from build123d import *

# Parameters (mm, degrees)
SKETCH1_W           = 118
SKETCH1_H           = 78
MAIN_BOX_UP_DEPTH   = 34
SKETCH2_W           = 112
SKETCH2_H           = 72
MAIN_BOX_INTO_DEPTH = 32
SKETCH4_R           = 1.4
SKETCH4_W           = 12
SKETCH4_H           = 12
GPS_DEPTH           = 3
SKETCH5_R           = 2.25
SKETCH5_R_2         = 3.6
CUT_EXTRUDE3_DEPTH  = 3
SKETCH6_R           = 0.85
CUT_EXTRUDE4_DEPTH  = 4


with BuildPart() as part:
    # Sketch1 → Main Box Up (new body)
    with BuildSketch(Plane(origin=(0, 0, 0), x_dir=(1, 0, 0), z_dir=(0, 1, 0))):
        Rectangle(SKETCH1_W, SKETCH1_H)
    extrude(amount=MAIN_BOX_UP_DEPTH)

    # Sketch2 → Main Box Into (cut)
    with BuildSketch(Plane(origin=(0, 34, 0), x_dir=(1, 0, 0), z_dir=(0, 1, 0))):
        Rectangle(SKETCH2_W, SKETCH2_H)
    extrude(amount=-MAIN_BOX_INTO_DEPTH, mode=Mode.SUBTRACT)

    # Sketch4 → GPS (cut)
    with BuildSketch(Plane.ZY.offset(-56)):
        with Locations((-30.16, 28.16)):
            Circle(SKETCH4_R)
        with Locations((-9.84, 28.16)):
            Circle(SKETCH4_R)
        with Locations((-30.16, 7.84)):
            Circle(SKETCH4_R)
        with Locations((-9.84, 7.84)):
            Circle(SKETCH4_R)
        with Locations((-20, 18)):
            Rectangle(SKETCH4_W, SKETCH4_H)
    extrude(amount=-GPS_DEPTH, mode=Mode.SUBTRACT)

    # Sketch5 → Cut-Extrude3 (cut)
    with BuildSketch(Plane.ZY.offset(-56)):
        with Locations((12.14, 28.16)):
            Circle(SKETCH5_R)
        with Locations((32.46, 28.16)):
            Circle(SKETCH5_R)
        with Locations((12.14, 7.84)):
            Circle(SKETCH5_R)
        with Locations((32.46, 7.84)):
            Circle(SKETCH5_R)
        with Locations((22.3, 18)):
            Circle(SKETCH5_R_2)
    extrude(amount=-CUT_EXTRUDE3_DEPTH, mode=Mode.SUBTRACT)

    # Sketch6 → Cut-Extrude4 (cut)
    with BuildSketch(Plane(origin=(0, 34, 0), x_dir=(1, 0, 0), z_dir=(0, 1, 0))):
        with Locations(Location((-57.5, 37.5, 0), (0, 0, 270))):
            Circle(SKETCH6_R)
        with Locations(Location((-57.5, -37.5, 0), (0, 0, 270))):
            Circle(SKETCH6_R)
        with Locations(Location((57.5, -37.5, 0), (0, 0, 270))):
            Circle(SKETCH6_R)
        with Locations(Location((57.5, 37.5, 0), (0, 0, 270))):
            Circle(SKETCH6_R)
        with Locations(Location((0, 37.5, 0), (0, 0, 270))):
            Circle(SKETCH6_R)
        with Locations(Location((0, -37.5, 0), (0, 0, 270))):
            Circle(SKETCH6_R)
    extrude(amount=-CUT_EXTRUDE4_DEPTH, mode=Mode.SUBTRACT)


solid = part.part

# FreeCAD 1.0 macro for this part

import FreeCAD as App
import Part
import Sketcher
from FreeCAD import Vector
Q = App.Units.Quantity

doc = App.newDocument("Part")
body = doc.addObject("PartDesign::Body", "Body")

sketch1 = body.newObject("Sketcher::SketchObject", "Sketch")
sketch1.AttachmentSupport = (doc.getObject("XZ_Plane"), [""])
sketch1.MapMode = "FlatFace"
sketch1.addGeometry([
    Part.LineSegment(Vector(-59, -39, 0), Vector(-59, 39, 0)),
    Part.LineSegment(Vector(-59, 39, 0), Vector(59, 39, 0)),
    Part.LineSegment(Vector(59, 39, 0), Vector(59, -39, 0)),
    Part.LineSegment(Vector(59, -39, 0), Vector(-59, -39, 0)),
], False)
sketch1.addConstraint([
    Sketcher.Constraint("Coincident", 0, 2, 1, 1),
    Sketcher.Constraint("Coincident", 1, 2, 2, 1),
    Sketcher.Constraint("Coincident", 2, 2, 3, 1),
    Sketcher.Constraint("Coincident", 3, 2, 0, 1),
    Sketcher.Constraint("Vertical", 0),
    Sketcher.Constraint("Horizontal", 1),
    Sketcher.Constraint("Vertical", 2),
    Sketcher.Constraint("Horizontal", 3),
    Sketcher.Constraint("Symmetric", 0, 2, 2, 2, -1, 1),
    Sketcher.Constraint("DistanceX", 1, 1, 1, 2, Q("118 mm")),
    Sketcher.Constraint("DistanceY", 0, 1, 0, 2, Q("78 mm")),
])
pad1 = body.newObject("PartDesign::Pad", "Pad")
pad1.Profile = sketch1
pad1.Length = 34
pad1.Reversed = True

sketch2 = body.newObject("Sketcher::SketchObject", "Sketch001")
sketch2.AttachmentSupport = (doc.getObject("XZ_Plane"), [""])
sketch2.MapMode = "FlatFace"
sketch2.AttachmentOffset = App.Placement(Vector(0, 0, -34), App.Rotation())
sketch2.addGeometry([
    Part.LineSegment(Vector(-56, -36, 0), Vector(-56, 36, 0)),
    Part.LineSegment(Vector(-56, 36, 0), Vector(56, 36, 0)),
    Part.LineSegment(Vector(56, 36, 0), Vector(56, -36, 0)),
    Part.LineSegment(Vector(56, -36, 0), Vector(-56, -36, 0)),
], False)
sketch2.addConstraint([
    Sketcher.Constraint("Coincident", 0, 2, 1, 1),
    Sketcher.Constraint("Coincident", 1, 2, 2, 1),
    Sketcher.Constraint("Coincident", 2, 2, 3, 1),
    Sketcher.Constraint("Coincident", 3, 2, 0, 1),
    Sketcher.Constraint("Vertical", 0),
    Sketcher.Constraint("Horizontal", 1),
    Sketcher.Constraint("Vertical", 2),
    Sketcher.Constraint("Horizontal", 3),
    Sketcher.Constraint("Symmetric", 0, 2, 2, 2, -1, 1),
    Sketcher.Constraint("DistanceX", 1, 1, 1, 2, Q("112 mm")),
    Sketcher.Constraint("DistanceY", 0, 1, 0, 2, Q("72 mm")),
])
pocket1 = body.newObject("PartDesign::Pocket", "Pocket")
pocket1.Profile = sketch2
pocket1.Length = 32
pocket1.Reversed = True

sketch3 = body.newObject("Sketcher::SketchObject", "Sketch002")
sketch3.AttachmentSupport = (doc.getObject("YZ_Plane"), [""])
sketch3.MapMode = "FlatFace"
sketch3.AttachmentOffset = App.Placement(Vector(0, 0, 56), App.Rotation())
sketch3.addGeometry([
    Part.Circle(Vector(28.16, -30.16, 0), Vector(0, 0, 1), 1.4),
    Part.Circle(Vector(28.16, -9.84, 0), Vector(0, 0, 1), 1.4),
    Part.Circle(Vector(7.84, -30.16, 0), Vector(0, 0, 1), 1.4),
    Part.Circle(Vector(7.84, -9.84, 0), Vector(0, 0, 1), 1.4),
    Part.LineSegment(Vector(24, -26, 0), Vector(12, -26, 0)),
    Part.LineSegment(Vector(12, -26, 0), Vector(12, -14, 0)),
    Part.LineSegment(Vector(12, -14, 0), Vector(24, -14, 0)),
    Part.LineSegment(Vector(24, -14, 0), Vector(24, -26, 0)),
], False)
sketch3.addConstraint([
    Sketcher.Constraint("Coincident", 4, 2, 5, 1),
    Sketcher.Constraint("Coincident", 5, 2, 6, 1),
    Sketcher.Constraint("Coincident", 6, 2, 7, 1),
    Sketcher.Constraint("Coincident", 7, 2, 4, 1),
    Sketcher.Constraint("Horizontal", 4),
    Sketcher.Constraint("Vertical", 5),
    Sketcher.Constraint("Horizontal", 6),
    Sketcher.Constraint("Vertical", 7),
    Sketcher.Constraint("Equal", 0, 1),
    Sketcher.Constraint("Equal", 1, 2),
    Sketcher.Constraint("Equal", 2, 3),
    Sketcher.Constraint("Horizontal", 0, 3, 2, 3),
    Sketcher.Constraint("Horizontal", 1, 3, 3, 3),
    Sketcher.Constraint("Vertical", 0, 3, 1, 3),
    Sketcher.Constraint("Vertical", 2, 3, 3, 3),
    Sketcher.Constraint("Equal", 6, 5),
    Sketcher.Constraint("Diameter", 0, Q("2.8 mm")),
    Sketcher.Constraint("DistanceX", 4, 2, 4, 1, Q("12 mm")),
    Sketcher.Constraint("DistanceX", -1, 1, 4, 2, Q("12 mm")),
    Sketcher.Constraint("DistanceY", 4, 2, -1, 1, Q("26 mm")),
    Sketcher.Constraint("DistanceX", -1, 1, 0, 3, Q("28.16 mm")),
    Sketcher.Constraint("DistanceY", 0, 3, -1, 1, Q("30.16 mm")),
    Sketcher.Constraint("DistanceY", 1, 3, -1, 1, Q("9.84 mm")),
    Sketcher.Constraint("DistanceX", -1, 1, 2, 3, Q("7.84 mm")),
])
pocket2 = body.newObject("PartDesign::Pocket", "Pocket001")
pocket2.Profile = sketch3
pocket2.Length = 3
pocket2.Reversed = True

sketch4 = body.newObject("Sketcher::SketchObject", "Sketch003")
sketch4.AttachmentSupport = (doc.getObject("YZ_Plane"), [""])
sketch4.MapMode = "FlatFace"
sketch4.AttachmentOffset = App.Placement(Vector(0, 0, 56), App.Rotation())
sketch4.addGeometry([
    Part.Circle(Vector(28.16, 12.14, 0), Vector(0, 0, 1), 2.25),
    Part.Circle(Vector(28.16, 32.46, 0), Vector(0, 0, 1), 2.25),
    Part.Circle(Vector(7.84, 12.14, 0), Vector(0, 0, 1), 2.25),
    Part.Circle(Vector(7.84, 32.46, 0), Vector(0, 0, 1), 2.25),
    Part.Circle(Vector(18, 22.3, 0), Vector(0, 0, 1), 3.6),
], False)
sketch4.addConstraint([
    Sketcher.Constraint("Equal", 0, 1),
    Sketcher.Constraint("Equal", 1, 2),
    Sketcher.Constraint("Equal", 2, 3),
    Sketcher.Constraint("Horizontal", 0, 3, 2, 3),
    Sketcher.Constraint("Horizontal", 1, 3, 3, 3),
    Sketcher.Constraint("Vertical", 0, 3, 1, 3),
    Sketcher.Constraint("Vertical", 2, 3, 3, 3),
    Sketcher.Constraint("Diameter", 0, Q("4.5 mm")),
    Sketcher.Constraint("Diameter", 4, Q("7.2 mm")),
    Sketcher.Constraint("DistanceX", -1, 1, 4, 3, Q("18 mm")),
    Sketcher.Constraint("DistanceY", -1, 1, 4, 3, Q("22.3 mm")),
    Sketcher.Constraint("DistanceX", -1, 1, 0, 3, Q("28.16 mm")),
    Sketcher.Constraint("DistanceY", -1, 1, 0, 3, Q("12.14 mm")),
    Sketcher.Constraint("DistanceY", -1, 1, 1, 3, Q("32.46 mm")),
    Sketcher.Constraint("DistanceX", -1, 1, 2, 3, Q("7.84 mm")),
])
pocket3 = body.newObject("PartDesign::Pocket", "Pocket002")
pocket3.Profile = sketch4
pocket3.Length = 3
pocket3.Reversed = True

sketch5 = body.newObject("Sketcher::SketchObject", "Sketch004")
sketch5.AttachmentSupport = (doc.getObject("XZ_Plane"), [""])
sketch5.MapMode = "FlatFace"
sketch5.AttachmentOffset = App.Placement(Vector(0, 0, -34), App.Rotation())
sketch5.addGeometry([
    Part.Circle(Vector(-57.5, -37.5, 0), Vector(0, 0, 1), 0.85),
    Part.Circle(Vector(-57.5, 37.5, 0), Vector(0, 0, 1), 0.85),
    Part.Circle(Vector(57.5, 37.5, 0), Vector(0, 0, 1), 0.85),
    Part.Circle(Vector(57.5, -37.5, 0), Vector(0, 0, 1), 0.85),
    Part.Circle(Vector(0, -37.5, 0), Vector(0, 0, 1), 0.85),
    Part.Circle(Vector(0, 37.5, 0), Vector(0, 0, 1), 0.85),
], False)
sketch5.addConstraint([
    Sketcher.Constraint("Equal", 0, 1),
    Sketcher.Constraint("Equal", 1, 2),
    Sketcher.Constraint("Equal", 2, 3),
    Sketcher.Constraint("Equal", 3, 4),
    Sketcher.Constraint("Equal", 4, 5),
    Sketcher.Constraint("Symmetric", 0, 3, 2, 3, -1, 1),
    Sketcher.Constraint("Symmetric", 1, 3, 3, 3, -1, 1),
    Sketcher.Constraint("Symmetric", 4, 3, 5, 3, -1, 1),
    Sketcher.Constraint("Symmetric", 1, 3, 2, 3, -2),
    Sketcher.Constraint("PointOnObject", 4, 3, -2),
    Sketcher.Constraint("Horizontal", 3, 3, 4, 3),
    Sketcher.Constraint("Diameter", 0, Q("1.7 mm")),
    Sketcher.Constraint("DistanceY", 0, 3, 1, 3, Q("75 mm")),
    Sketcher.Constraint("DistanceX", 1, 3, 2, 3, Q("115 mm")),
])
pocket4 = body.newObject("PartDesign::Pocket", "Pocket003")
pocket4.Profile = sketch5
pocket4.Length = 4
pocket4.Reversed = True

doc.recompute()
